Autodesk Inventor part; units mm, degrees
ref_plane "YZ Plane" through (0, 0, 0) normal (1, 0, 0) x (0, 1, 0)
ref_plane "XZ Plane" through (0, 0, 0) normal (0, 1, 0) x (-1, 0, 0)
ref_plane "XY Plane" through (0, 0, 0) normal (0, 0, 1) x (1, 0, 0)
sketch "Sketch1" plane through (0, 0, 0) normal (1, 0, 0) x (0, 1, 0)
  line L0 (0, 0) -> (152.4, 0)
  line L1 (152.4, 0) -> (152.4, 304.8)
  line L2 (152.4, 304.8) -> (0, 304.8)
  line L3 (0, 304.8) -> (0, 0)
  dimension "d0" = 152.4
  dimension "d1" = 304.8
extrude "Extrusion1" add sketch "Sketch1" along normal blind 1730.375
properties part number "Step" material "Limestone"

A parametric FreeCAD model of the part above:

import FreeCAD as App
import Part
import Sketcher

V = App.Vector
Q = App.Units.Quantity

doc = App.newDocument("Part")
params = doc.addObject("Spreadsheet::Sheet", "Params")
for row, (alias, value) in enumerate([
    ("sketch1_width", "6 in"),
    ("sketch1_height", "12 in"),
    ("pad1_length", "68.125 in"),
], start=1):
    params.set(f"A{row}", alias)
    params.set(f"B{row}", "=" + value)
    params.setAlias(f"B{row}", alias)

body = doc.addObject("PartDesign::Body", "Body")

# Sketch on YZ plane
sketch1 = doc.addObject("Sketcher::SketchObject", "Sketch")
body.addObject(sketch1)
sketch1.AttachmentSupport = (doc.YZ_Plane, [""])
sketch1.MapMode = "FlatFace"
sketch1.addGeometry([
    Part.LineSegment(V(0, 305, 0), V(0, 0, 0)),
    Part.LineSegment(V(0, 0, 0), V(152, 0, 0)),
    Part.LineSegment(V(152, 0, 0), V(152, 305, 0)),
    Part.LineSegment(V(152, 305, 0), V(0, 305, 0)),
], False)
sketch1.addConstraint([
    Sketcher.Constraint("Coincident", 0, 2, 1, 1),
    Sketcher.Constraint("Coincident", 1, 2, 2, 1),
    Sketcher.Constraint("Coincident", 2, 2, 3, 1),
    Sketcher.Constraint("Coincident", 3, 2, 0, 1),
    Sketcher.Constraint("Vertical", 0),
    Sketcher.Constraint("Horizontal", 1),
    Sketcher.Constraint("Vertical", 2),
    Sketcher.Constraint("Horizontal", 3),
    Sketcher.Constraint("Coincident", 0, 2, -1, 1),
    Sketcher.Constraint("DistanceX", 1, 1, 1, 2, Q("6 in")),
    Sketcher.Constraint("DistanceY", 0, 2, 0, 1, Q("12 in")),
])
sketch1.setExpression("Constraints[9]", "Params.sketch1_width")
sketch1.setExpression("Constraints[10]", "Params.sketch1_height")
pad1 = doc.addObject("PartDesign::Pad", "Pad")
body.addObject(pad1)
pad1.Profile = sketch1
pad1.setExpression("Length", "Params.pad1_length")

doc.recompute()
